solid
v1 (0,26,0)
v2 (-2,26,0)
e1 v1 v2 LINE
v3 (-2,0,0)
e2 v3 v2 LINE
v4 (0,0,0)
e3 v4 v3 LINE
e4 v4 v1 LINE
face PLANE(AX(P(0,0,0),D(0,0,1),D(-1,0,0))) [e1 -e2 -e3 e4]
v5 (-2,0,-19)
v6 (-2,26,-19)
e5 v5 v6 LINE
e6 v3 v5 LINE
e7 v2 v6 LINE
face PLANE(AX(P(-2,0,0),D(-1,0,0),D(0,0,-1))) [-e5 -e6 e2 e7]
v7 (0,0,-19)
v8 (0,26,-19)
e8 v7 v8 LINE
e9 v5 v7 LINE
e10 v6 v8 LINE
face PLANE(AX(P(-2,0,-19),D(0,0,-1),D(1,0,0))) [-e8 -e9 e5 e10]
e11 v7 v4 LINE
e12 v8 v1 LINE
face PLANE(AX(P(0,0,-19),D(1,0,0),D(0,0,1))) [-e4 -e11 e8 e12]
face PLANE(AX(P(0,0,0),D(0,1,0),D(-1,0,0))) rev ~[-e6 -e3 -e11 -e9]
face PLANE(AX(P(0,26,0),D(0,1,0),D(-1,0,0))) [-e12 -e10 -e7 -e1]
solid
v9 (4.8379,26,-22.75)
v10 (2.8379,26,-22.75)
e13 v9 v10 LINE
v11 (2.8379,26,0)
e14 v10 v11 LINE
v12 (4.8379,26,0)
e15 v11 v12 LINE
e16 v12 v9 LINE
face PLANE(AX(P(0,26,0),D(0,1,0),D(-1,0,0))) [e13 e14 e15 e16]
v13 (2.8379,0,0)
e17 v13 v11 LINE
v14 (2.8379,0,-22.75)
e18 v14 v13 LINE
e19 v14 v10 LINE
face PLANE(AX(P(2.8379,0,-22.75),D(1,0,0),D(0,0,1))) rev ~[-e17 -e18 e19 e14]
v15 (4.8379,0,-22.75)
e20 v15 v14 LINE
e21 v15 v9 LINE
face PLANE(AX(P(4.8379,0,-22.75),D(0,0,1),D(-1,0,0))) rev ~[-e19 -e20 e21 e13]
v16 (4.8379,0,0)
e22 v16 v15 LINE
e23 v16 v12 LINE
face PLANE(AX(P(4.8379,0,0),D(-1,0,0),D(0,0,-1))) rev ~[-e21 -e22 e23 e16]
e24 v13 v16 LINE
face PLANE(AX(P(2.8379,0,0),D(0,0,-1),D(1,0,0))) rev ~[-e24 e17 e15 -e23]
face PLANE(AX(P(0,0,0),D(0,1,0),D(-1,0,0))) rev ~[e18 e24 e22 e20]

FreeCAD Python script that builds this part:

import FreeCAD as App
import Part
import Sketcher

V = App.Vector


def add_polygon(sketch, points):
    """Adds a closed chain of lines whose ends are joined by coincident constraints."""
    first, n = sketch.GeometryCount, len(points)
    for a, b in zip(points, points[1:] + points[:1]):
        sketch.addGeometry(Part.LineSegment(App.Vector(*a, 0), App.Vector(*b, 0)), False)
    for i in range(n):
        sketch.addConstraint(Sketcher.Constraint("Coincident", first + i, 2, first + (i + 1) % n, 1))

doc = App.newDocument("Part")
body = doc.addObject("PartDesign::Body", "Body")
body.AllowCompound = True

# Sketch on XZ plane
sketch1 = doc.addObject("Sketcher::SketchObject", "Sketch")
body.addObject(sketch1)
sketch1.AttachmentSupport = (doc.XZ_Plane, [""])
sketch1.MapMode = "FlatFace"
add_polygon(sketch1, [(-2, 0), (0, 0), (0, -19), (-2, -19)])  # lines 0-3
add_polygon(sketch1, [(2.8379, -22.75), (2.8379, 0), (4.8379, 0), (4.8379, -22.75)])  # lines 4-7
sketch1.addConstraint(Sketcher.Constraint("Horizontal", 0))
sketch1.addConstraint(Sketcher.Constraint("Vertical", 1))
sketch1.addConstraint(Sketcher.Constraint("Horizontal", 2))
sketch1.addConstraint(Sketcher.Constraint("Vertical", 3))
sketch1.addConstraint(Sketcher.Constraint("Vertical", 4))
sketch1.addConstraint(Sketcher.Constraint("Horizontal", 5))
sketch1.addConstraint(Sketcher.Constraint("Vertical", 6))
sketch1.addConstraint(Sketcher.Constraint("Horizontal", 7))
sketch1.addConstraint(Sketcher.Constraint("Coincident", 0, 2, -1, 1))
sketch1.addConstraint(Sketcher.Constraint("PointOnObject", 4, 2, -1))
sketch1.addConstraint(Sketcher.Constraint("Equal", 2, 5))
sketch1.addConstraint(Sketcher.Constraint("DistanceX", 0, 1, 0, 2, 2.0))
sketch1.addConstraint(Sketcher.Constraint("DistanceY", 1, 2, 1, 1, 19.0))
sketch1.addConstraint(Sketcher.Constraint("DistanceY", 4, 1, 4, 2, 22.75))
sketch1.addConstraint(Sketcher.Constraint("DistanceX", -1, 1, 4, 2, 2.838))
pad1 = doc.addObject("PartDesign::Pad", "Pad")
body.addObject(pad1)
pad1.Profile = sketch1
pad1.Length = 26
pad1.Reversed = True

doc.recompute()
